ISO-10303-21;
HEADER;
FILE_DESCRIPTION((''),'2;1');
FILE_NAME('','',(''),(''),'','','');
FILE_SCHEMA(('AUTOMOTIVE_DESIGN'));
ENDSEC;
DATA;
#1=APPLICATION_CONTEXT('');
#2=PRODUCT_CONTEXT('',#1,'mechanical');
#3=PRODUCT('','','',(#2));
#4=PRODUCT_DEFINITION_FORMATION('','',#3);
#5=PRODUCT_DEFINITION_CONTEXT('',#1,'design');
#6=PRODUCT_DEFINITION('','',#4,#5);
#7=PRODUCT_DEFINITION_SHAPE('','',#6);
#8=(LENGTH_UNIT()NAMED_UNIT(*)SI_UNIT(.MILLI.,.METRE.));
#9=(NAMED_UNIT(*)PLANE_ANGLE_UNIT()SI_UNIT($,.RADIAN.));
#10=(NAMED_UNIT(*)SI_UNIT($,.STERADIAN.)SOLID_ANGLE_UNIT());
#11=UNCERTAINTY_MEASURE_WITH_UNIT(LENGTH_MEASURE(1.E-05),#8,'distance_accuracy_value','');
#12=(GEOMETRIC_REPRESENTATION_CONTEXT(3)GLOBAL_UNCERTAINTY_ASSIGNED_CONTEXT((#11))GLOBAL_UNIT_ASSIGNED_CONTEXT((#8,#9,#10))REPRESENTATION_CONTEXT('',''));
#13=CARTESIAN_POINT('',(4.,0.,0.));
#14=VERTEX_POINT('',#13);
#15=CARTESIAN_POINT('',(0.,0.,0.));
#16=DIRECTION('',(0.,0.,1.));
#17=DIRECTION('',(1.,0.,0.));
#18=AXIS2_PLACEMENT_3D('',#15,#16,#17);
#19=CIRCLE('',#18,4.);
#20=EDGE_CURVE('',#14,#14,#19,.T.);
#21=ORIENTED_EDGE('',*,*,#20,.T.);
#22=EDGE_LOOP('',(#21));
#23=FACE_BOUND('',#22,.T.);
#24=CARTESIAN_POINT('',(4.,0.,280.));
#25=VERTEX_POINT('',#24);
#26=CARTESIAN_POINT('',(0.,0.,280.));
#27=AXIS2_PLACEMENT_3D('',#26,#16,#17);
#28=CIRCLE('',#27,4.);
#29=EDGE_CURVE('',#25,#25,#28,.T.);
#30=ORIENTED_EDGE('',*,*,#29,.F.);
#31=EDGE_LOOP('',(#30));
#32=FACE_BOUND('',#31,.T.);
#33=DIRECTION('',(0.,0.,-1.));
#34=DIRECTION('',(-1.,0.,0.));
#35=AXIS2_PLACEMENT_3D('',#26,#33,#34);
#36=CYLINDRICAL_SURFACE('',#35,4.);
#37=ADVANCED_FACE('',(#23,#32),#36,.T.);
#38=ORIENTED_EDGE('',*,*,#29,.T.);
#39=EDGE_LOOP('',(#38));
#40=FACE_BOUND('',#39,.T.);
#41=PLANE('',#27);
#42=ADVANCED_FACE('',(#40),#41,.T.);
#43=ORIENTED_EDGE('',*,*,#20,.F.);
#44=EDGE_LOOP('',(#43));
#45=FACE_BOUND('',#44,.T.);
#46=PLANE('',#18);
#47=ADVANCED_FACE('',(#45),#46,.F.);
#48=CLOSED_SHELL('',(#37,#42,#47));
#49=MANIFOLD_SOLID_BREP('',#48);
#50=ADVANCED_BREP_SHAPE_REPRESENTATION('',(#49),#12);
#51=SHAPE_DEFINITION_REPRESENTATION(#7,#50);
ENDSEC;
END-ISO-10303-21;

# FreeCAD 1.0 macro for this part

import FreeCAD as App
import Part
import Sketcher

V = App.Vector
Q = App.Units.Quantity

doc = App.newDocument("Part")
body = doc.addObject("PartDesign::Body", "Body")

sketch1 = doc.addObject("Sketcher::SketchObject", "Sketch")
body.addObject(sketch1)
sketch1.AttachmentSupport = (doc.XY_Plane, [""])
sketch1.MapMode = "FlatFace"
sketch1.addGeometry(Part.Circle(V(0, 0, 0), V(0, 0, 1), 4), False)
sketch1.addConstraint([
    Sketcher.Constraint("Coincident", 0, 3, -1, 1),
    Sketcher.Constraint("Diameter", 0, Q("8 mm")),
])
pad1 = doc.addObject("PartDesign::Pad", "Pad")
body.addObject(pad1)
pad1.Profile = sketch1
pad1.Length = 280

doc.recompute()
